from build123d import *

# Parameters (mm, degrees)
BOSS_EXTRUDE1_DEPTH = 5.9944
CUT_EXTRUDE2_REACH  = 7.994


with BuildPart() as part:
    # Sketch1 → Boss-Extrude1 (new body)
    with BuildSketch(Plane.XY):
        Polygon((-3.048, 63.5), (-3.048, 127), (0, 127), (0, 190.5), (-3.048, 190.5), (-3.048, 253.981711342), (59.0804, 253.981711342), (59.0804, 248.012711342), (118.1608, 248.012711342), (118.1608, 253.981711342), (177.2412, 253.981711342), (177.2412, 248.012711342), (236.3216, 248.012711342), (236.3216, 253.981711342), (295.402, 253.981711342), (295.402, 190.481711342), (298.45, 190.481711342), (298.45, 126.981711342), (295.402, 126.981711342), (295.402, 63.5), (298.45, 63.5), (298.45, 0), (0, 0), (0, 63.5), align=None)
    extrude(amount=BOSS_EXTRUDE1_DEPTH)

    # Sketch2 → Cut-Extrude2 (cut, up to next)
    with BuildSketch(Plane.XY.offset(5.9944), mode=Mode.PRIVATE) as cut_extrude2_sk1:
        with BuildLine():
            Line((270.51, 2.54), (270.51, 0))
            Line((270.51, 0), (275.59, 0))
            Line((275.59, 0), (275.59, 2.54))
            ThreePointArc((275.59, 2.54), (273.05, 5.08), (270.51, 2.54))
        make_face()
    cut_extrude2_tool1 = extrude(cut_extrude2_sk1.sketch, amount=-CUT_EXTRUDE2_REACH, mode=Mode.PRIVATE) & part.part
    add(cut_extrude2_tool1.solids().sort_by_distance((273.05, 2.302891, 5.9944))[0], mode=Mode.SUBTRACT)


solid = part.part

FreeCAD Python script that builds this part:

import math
import FreeCAD as App
import Part
import Sketcher

V = App.Vector
Q = App.Units.Quantity


def add_polygon(sketch, points):
    """Adds a closed chain of lines whose ends are joined by coincident constraints."""
    first, n = sketch.GeometryCount, len(points)
    for a, b in zip(points, points[1:] + points[:1]):
        sketch.addGeometry(Part.LineSegment(App.Vector(*a, 0), App.Vector(*b, 0)), False)
    for i in range(n):
        sketch.addConstraint(Sketcher.Constraint("Coincident", first + i, 2, first + (i + 1) % n, 1))

doc = App.newDocument("Part")
body = doc.addObject("PartDesign::Body", "Body")

sketch1 = doc.addObject("Sketcher::SketchObject", "Sketch")
body.addObject(sketch1)
sketch1.AttachmentSupport = (doc.XY_Plane, [""])
sketch1.MapMode = "FlatFace"
add_polygon(sketch1, [(-3, 127), (-3, 63.5), (0, 63.5), (0, 0), (298.4, 0), (298.4, 63.5), (295.4, 63.5), (295.4, 127), (298.4, 127), (298.4, 190.5), (295.4, 190.5), (295.4, 254), (236.3, 254), (236.3, 248), (177.2, 248), (177.2, 254), (118.2, 254), (118.2, 248), (59.1, 248), (59.1, 254), (-3, 254), (-3, 190.5), (0, 190.5), (0, 127)])
sketch1.addConstraint([
    Sketcher.Constraint("Vertical", 0),
    Sketcher.Constraint("Horizontal", 1),
    Sketcher.Constraint("Vertical", 2),
    Sketcher.Constraint("Horizontal", 3),
    Sketcher.Constraint("Vertical", 4),
    Sketcher.Constraint("Horizontal", 5),
    Sketcher.Constraint("Vertical", 6),
    Sketcher.Constraint("Horizontal", 7),
    Sketcher.Constraint("Vertical", 8),
    Sketcher.Constraint("Horizontal", 9),
    Sketcher.Constraint("Vertical", 10),
    Sketcher.Constraint("Horizontal", 11),
    Sketcher.Constraint("Vertical", 12),
    Sketcher.Constraint("Horizontal", 13),
    Sketcher.Constraint("Vertical", 14),
    Sketcher.Constraint("Horizontal", 15),
    Sketcher.Constraint("Vertical", 16),
    Sketcher.Constraint("Horizontal", 17),
    Sketcher.Constraint("Vertical", 18),
    Sketcher.Constraint("Horizontal", 19),
    Sketcher.Constraint("Vertical", 20),
    Sketcher.Constraint("Horizontal", 21),
    Sketcher.Constraint("Vertical", 22),
    Sketcher.Constraint("Horizontal", 23),
    Sketcher.Constraint("Coincident", 2, 2, -1, 1),
    Sketcher.Constraint("PointOnObject", 21, 2, -2),
    Sketcher.Constraint("Horizontal", 1, 2, 4, 2),
    Sketcher.Constraint("Horizontal", 11, 2, 14, 2),
    Sketcher.Constraint("Horizontal", 13, 2, 16, 2),
    Sketcher.Constraint("Horizontal", 15, 2, 18, 2),
    Sketcher.Constraint("Vertical", 4, 2, 7, 2),
    Sketcher.Constraint("Vertical", 6, 2, 9, 2),
    Sketcher.Constraint("Vertical", 0, 2, 19, 2),
    Sketcher.Constraint("Equal", 1, 5),
    Sketcher.Constraint("Equal", 11, 13),
    Sketcher.Constraint("Equal", 13, 15),
    Sketcher.Constraint("Equal", 15, 17),
    Sketcher.Constraint("Equal", 0, 2),
    Sketcher.Constraint("Equal", 4, 8),
    Sketcher.Constraint("Equal", 8, 10),
    Sketcher.Constraint("Equal", 6, 20),
    Sketcher.Constraint("DistanceY", 0, 2, 0, 1, Q("2.5 in")),
    Sketcher.Constraint("DistanceX", 1, 1, 1, 2, Q("0.12 in")),
    Sketcher.Constraint("DistanceX", 3, 1, 3, 2, Q("11.75 in")),
    Sketcher.Constraint("DistanceX", 11, 2, 11, 1, Q("2.326 in")),
    Sketcher.Constraint("DistanceY", 12, 2, 12, 1, Q("0.235 in")),
    Sketcher.Constraint("DistanceY", 6, 1, 6, 2, 63.481711),
])
pad1 = doc.addObject("PartDesign::Pad", "Pad")
body.addObject(pad1)
pad1.Profile = sketch1
pad1.Length = Q("0.236 in")

sketch2 = doc.addObject("Sketcher::SketchObject", "Sketch001")
body.addObject(sketch2)
sketch2.AttachmentSupport = (doc.XY_Plane, [""])
sketch2.MapMode = "FlatFace"
sketch2.AttachmentOffset = App.Placement(V(0, 0, 0.236 * 25.4), App.Rotation())
sketch2.addGeometry([
    Part.LineSegment(V(270.5, 2.5, 0), V(270.5, 0, 0)),
    Part.LineSegment(V(270.5, 0, 0), V(275.6, 0, 0)),
    Part.LineSegment(V(275.6, 0, 0), V(275.6, 2.5, 0)),
    Part.ArcOfCircle(Part.Circle(V(273.1, 2.5, 0), V(0, 0, 1), 2.5), math.radians(0), math.radians(180)),
], False)
sketch2.addConstraint([
    Sketcher.Constraint("Coincident", 0, 2, 1, 1),
    Sketcher.Constraint("Coincident", 1, 2, 2, 1),
    Sketcher.Constraint("Tangent", 2, 2, 3, 1),
    Sketcher.Constraint("Tangent", 3, 2, 0, 1),
    Sketcher.Constraint("Vertical", 0),
    Sketcher.Constraint("Horizontal", 1),
    Sketcher.Constraint("Vertical", 2),
    Sketcher.Constraint("PointOnObject", 0, 2, -1),
    Sketcher.Constraint("Radius", 3, Q("0.1 in")),
    Sketcher.Constraint("DistanceY", 0, 2, 0, 1, Q("0.1 in")),
    Sketcher.Constraint("DistanceX", -1, 1, 3, 3, Q("10.75 in")),
])
pocket1 = doc.addObject("PartDesign::Pocket", "Pocket")
body.addObject(pocket1)
pocket1.Profile = sketch2
pocket1.Type = "UpToFirst"

doc.recompute()
